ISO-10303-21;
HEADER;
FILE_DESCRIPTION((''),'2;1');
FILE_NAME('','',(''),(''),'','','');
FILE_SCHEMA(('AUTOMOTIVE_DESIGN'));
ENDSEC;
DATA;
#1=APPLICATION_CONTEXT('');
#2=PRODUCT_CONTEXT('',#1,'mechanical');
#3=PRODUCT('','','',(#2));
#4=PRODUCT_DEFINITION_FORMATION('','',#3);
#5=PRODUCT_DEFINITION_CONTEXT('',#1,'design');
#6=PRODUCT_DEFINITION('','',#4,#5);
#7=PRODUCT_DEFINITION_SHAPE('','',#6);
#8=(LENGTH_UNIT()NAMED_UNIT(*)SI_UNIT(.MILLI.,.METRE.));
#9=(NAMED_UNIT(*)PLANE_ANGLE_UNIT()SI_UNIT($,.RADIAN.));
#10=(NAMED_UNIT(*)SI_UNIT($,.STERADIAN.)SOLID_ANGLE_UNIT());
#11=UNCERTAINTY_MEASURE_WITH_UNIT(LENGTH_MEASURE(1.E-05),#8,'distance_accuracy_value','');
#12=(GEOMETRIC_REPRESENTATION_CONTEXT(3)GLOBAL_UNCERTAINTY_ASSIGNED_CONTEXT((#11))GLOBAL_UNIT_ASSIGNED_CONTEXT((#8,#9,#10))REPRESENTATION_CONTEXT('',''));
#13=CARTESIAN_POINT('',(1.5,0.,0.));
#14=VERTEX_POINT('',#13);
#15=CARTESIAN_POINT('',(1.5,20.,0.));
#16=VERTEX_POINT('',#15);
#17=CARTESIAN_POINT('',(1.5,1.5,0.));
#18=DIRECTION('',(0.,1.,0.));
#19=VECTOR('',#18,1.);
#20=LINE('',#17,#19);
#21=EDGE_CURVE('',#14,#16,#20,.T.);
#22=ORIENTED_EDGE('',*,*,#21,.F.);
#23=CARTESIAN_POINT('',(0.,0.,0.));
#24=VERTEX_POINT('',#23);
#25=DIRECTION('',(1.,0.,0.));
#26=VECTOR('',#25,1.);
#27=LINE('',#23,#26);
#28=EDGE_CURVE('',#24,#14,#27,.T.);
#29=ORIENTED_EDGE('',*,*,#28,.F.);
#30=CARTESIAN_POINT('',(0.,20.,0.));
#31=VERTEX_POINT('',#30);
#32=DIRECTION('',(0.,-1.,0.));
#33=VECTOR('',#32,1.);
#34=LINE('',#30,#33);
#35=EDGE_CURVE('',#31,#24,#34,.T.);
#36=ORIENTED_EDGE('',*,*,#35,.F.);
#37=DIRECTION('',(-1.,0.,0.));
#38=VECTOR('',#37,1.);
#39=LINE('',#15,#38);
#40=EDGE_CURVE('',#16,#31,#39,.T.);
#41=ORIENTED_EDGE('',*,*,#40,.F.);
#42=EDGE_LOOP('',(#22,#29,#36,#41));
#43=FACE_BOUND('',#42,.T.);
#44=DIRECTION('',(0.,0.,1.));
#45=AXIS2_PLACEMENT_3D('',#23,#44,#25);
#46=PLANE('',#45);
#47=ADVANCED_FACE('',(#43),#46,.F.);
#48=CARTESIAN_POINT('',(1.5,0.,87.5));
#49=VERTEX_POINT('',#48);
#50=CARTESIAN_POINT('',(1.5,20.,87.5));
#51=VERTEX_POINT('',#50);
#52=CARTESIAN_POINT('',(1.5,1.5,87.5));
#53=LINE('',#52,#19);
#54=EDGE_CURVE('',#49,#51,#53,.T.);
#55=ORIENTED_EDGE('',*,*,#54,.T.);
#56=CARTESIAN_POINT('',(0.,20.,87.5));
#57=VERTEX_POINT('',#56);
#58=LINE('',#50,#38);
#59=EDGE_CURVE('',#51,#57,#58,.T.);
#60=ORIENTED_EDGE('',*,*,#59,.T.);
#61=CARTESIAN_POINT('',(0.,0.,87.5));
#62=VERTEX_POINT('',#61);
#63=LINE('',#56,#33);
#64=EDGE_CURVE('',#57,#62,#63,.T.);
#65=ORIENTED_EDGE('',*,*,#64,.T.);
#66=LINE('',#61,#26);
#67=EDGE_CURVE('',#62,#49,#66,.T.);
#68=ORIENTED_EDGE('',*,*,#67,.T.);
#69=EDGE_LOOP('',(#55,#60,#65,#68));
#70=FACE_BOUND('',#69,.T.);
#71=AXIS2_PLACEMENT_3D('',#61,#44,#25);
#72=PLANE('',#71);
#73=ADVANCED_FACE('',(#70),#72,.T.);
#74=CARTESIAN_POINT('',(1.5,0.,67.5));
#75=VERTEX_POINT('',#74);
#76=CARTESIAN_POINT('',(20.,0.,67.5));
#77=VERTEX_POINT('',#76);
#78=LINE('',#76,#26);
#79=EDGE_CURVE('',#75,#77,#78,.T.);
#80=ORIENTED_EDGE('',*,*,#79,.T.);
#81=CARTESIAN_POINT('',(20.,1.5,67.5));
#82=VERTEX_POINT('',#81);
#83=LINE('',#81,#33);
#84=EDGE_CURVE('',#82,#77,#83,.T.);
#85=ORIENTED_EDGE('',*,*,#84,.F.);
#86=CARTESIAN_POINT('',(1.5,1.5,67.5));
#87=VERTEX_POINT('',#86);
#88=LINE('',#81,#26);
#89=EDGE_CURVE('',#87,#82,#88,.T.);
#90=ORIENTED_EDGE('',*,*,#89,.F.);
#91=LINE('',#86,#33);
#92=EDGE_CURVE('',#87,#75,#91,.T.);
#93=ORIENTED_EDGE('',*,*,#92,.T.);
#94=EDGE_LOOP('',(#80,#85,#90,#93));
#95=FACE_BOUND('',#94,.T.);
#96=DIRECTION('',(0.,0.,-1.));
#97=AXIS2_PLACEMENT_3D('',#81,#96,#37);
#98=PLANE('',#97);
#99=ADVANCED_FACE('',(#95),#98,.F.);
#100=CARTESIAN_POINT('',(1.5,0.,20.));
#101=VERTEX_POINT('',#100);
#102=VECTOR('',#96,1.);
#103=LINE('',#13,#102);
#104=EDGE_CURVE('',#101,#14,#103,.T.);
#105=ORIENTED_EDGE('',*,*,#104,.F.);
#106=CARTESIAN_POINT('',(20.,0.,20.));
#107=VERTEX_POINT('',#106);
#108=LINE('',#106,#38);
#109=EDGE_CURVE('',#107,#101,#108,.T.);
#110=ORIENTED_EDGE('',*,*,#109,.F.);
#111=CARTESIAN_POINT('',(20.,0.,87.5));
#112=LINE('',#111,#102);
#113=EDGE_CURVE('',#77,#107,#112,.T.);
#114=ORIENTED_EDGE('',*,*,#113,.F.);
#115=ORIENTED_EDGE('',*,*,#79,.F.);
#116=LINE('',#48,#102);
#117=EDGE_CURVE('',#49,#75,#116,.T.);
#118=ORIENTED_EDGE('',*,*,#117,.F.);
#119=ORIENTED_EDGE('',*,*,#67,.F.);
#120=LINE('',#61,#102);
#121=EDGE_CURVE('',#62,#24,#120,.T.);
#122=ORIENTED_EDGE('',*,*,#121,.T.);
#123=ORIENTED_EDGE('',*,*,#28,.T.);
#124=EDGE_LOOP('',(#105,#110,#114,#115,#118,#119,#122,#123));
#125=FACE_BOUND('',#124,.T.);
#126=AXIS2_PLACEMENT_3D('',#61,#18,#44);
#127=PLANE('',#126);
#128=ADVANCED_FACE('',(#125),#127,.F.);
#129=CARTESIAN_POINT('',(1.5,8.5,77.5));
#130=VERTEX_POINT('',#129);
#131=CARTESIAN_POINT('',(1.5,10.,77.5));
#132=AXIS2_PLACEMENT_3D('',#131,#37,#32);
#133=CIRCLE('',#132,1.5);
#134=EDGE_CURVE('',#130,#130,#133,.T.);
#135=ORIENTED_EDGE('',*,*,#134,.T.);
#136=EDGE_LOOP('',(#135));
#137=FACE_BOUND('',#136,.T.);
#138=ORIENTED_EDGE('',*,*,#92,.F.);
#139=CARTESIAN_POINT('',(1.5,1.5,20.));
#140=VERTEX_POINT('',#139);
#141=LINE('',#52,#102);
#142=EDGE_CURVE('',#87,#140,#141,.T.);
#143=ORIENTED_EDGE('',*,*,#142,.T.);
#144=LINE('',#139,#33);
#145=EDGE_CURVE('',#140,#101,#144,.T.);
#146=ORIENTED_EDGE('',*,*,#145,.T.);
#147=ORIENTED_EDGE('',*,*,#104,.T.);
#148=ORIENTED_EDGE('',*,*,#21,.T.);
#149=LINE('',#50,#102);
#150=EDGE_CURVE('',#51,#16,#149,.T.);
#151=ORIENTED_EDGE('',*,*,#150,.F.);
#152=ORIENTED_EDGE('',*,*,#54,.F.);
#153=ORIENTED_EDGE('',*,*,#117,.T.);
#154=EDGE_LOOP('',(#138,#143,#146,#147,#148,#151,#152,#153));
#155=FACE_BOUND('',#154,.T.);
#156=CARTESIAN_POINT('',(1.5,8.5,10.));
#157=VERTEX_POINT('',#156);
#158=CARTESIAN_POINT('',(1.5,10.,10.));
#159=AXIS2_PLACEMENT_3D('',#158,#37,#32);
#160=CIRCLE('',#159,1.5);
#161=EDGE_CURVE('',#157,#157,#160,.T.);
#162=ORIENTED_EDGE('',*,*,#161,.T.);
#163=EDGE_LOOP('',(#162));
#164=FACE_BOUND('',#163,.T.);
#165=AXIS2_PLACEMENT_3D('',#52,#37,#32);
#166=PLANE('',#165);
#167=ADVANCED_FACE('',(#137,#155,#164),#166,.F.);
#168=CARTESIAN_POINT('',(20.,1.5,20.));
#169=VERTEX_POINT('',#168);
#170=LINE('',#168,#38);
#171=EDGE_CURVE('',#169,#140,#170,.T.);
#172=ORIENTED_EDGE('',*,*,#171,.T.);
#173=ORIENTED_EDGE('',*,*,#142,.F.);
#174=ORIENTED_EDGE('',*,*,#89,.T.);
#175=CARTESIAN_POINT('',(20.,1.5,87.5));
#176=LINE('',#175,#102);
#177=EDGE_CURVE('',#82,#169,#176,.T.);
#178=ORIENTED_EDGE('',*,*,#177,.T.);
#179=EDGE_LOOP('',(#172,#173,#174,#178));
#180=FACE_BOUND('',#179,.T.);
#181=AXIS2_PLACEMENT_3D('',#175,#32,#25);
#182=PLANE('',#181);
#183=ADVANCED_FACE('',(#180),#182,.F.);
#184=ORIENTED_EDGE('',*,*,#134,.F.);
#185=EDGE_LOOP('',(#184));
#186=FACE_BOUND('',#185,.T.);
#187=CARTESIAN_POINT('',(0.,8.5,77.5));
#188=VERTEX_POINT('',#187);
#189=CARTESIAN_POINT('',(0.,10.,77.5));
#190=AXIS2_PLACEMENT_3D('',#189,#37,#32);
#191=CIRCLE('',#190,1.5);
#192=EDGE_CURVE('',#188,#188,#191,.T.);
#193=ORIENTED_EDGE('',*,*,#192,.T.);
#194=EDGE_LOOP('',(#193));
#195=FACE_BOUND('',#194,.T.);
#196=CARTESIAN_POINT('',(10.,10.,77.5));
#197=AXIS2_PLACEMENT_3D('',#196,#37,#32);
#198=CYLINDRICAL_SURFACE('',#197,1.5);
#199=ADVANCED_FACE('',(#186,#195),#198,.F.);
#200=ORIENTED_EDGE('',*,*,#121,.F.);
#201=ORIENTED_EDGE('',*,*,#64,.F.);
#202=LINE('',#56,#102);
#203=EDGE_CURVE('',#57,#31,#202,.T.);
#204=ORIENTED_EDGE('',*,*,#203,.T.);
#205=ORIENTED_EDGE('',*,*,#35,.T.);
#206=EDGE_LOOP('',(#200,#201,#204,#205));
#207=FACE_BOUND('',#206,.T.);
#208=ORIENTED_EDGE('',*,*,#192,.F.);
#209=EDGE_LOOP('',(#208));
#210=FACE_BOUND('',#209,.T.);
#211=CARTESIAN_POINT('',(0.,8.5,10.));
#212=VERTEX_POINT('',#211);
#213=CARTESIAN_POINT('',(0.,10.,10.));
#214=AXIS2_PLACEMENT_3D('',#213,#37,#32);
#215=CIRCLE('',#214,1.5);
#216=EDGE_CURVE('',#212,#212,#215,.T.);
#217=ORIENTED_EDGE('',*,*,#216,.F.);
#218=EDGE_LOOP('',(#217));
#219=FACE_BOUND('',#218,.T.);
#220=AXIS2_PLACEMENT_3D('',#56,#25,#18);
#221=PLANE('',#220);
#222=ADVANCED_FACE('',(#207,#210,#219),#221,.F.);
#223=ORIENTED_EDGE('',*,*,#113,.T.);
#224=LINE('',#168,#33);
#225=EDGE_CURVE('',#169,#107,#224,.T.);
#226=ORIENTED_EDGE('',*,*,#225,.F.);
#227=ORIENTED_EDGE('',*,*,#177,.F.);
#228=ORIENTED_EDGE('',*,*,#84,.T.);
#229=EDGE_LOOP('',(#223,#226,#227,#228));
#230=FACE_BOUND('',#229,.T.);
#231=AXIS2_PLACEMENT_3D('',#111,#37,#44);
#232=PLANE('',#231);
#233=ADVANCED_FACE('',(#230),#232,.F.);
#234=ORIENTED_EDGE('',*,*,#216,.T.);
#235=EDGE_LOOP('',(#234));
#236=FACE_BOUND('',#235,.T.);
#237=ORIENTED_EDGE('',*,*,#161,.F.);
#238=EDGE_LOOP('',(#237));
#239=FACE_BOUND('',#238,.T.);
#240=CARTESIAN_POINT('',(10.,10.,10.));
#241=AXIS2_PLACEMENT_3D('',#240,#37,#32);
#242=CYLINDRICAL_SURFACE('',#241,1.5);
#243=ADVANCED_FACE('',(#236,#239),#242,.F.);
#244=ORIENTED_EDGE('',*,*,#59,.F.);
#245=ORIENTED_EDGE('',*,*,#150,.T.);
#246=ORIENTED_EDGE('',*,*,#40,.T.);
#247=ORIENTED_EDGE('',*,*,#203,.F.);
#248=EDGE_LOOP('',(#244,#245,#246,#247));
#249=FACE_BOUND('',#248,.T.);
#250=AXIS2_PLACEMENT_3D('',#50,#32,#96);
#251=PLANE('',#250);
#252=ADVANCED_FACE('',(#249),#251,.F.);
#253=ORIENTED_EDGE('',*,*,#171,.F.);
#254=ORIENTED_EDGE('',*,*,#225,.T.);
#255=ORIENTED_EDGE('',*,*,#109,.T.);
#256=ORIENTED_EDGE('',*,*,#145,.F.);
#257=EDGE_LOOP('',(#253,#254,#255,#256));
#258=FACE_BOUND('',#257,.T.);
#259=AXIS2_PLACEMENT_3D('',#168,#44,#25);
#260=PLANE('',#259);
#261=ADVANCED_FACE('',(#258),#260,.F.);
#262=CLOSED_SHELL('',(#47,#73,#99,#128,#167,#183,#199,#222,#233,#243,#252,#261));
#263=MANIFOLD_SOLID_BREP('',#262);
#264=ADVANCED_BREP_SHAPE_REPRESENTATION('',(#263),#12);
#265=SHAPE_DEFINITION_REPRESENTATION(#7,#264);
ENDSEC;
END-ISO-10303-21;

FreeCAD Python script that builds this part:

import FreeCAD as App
import Part
import Sketcher
Q = App.Units.Quantity


def add_polygon(sketch, points):
    """Adds a closed chain of lines whose ends are joined by coincident constraints."""
    first, n = sketch.GeometryCount, len(points)
    for a, b in zip(points, points[1:] + points[:1]):
        sketch.addGeometry(Part.LineSegment(App.Vector(*a, 0), App.Vector(*b, 0)), False)
    for i in range(n):
        sketch.addConstraint(Sketcher.Constraint("Coincident", first + i, 2, first + (i + 1) % n, 1))

doc = App.newDocument("Part")
body = doc.addObject("PartDesign::Body", "Body")

# Sketch on XY plane
sketch1 = doc.addObject("Sketcher::SketchObject", "Sketch")
body.addObject(sketch1)
sketch1.AttachmentSupport = (doc.XY_Plane, [""])
sketch1.MapMode = "FlatFace"
add_polygon(sketch1, [(0, 0), (20, 0), (20, 1.5), (1.5, 1.5), (1.5, 20), (0, 20)])  # lines 0-5
sketch1.addConstraint([
    Sketcher.Constraint("Horizontal", 0),
    Sketcher.Constraint("Vertical", 1),
    Sketcher.Constraint("Horizontal", 2),
    Sketcher.Constraint("Vertical", 3),
    Sketcher.Constraint("Horizontal", 4),
    Sketcher.Constraint("Vertical", 5),
    Sketcher.Constraint("Coincident", 5, 2, -1, 1),
    Sketcher.Constraint("Equal", 4, 1),
    Sketcher.Constraint("Equal", 2, 3),
    Sketcher.Constraint("DistanceX", 0, 1, 0, 2, Q("20 mm")),
    Sketcher.Constraint("DistanceX", 2, 2, 2, 1, Q("18.5 mm")),
])
pad1 = doc.addObject("PartDesign::Pad", "Pad")
body.addObject(pad1)
pad1.Profile = sketch1
pad1.Length = 87.5

# Sketch on YZ plane
sketch2 = doc.addObject("Sketcher::SketchObject", "Sketch001")
body.addObject(sketch2)
sketch2.AttachmentSupport = (doc.YZ_Plane, [""])
sketch2.MapMode = "FlatFace"
sketch2.addGeometry([
    Part.Circle(App.Vector(10, 77.5, 0), App.Vector(0, 0, 1), 1.5),
    Part.Circle(App.Vector(10, 10, 0), App.Vector(0, 0, 1), 1.5),
], False)
sketch2.addConstraint([
    Sketcher.Constraint("Equal", 0, 1),
    Sketcher.Constraint("Vertical", 0, 3, 1, 3),
    Sketcher.Constraint("Diameter", 0, Q("3 mm")),
    Sketcher.Constraint("DistanceX", -1, 1, 0, 3, Q("10 mm")),
    Sketcher.Constraint("DistanceY", -1, 1, 1, 3, Q("10 mm")),
    Sketcher.Constraint("DistanceY", -1, 1, 0, 3, Q("77.5 mm")),
])
pocket1 = doc.addObject("PartDesign::Pocket", "Pocket")
body.addObject(pocket1)
pocket1.Profile = sketch2
pocket1.Length = 10
pocket1.Reversed = True

# Sketch on XZ plane
sketch3 = doc.addObject("Sketcher::SketchObject", "Sketch002")
body.addObject(sketch3)
sketch3.AttachmentSupport = (doc.XZ_Plane, [""])
sketch3.MapMode = "FlatFace"
add_polygon(sketch3, [(2, 20), (2, 0), (20, 0), (20, 20)])  # lines 0-3
add_polygon(sketch3, [(2, 88), (2, 68), (20, 68), (20, 88)])  # lines 4-7
sketch3.addConstraint([
    Sketcher.Constraint("Vertical", 0),
    Sketcher.Constraint("Horizontal", 1),
    Sketcher.Constraint("Vertical", 2),
    Sketcher.Constraint("Horizontal", 3),
    Sketcher.Constraint("Vertical", 4),
    Sketcher.Constraint("Horizontal", 5),
    Sketcher.Constraint("Vertical", 6),
    Sketcher.Constraint("Horizontal", 7),
    Sketcher.Constraint("PointOnObject", 0, 2, -1),
    Sketcher.Constraint("Vertical", 3, 2, 4, 2),
    Sketcher.Constraint("Vertical", 2, 2, 5, 2),
    Sketcher.Constraint("Equal", 2, 4),
    Sketcher.Constraint("DistanceY", 0, 2, 0, 1, Q("20 mm")),
    Sketcher.Constraint("DistanceX", 1, 1, 1, 2, Q("18.5 mm")),
    Sketcher.Constraint("DistanceX", -1, 1, 1, 2, Q("20 mm")),
    Sketcher.Constraint("DistanceY", -1, 1, 4, 2, Q("67.5 mm")),
])
pocket2 = doc.addObject("PartDesign::Pocket", "Pocket001")
body.addObject(pocket2)
pocket2.Profile = sketch3
pocket2.Length = 1.5

doc.recompute()
